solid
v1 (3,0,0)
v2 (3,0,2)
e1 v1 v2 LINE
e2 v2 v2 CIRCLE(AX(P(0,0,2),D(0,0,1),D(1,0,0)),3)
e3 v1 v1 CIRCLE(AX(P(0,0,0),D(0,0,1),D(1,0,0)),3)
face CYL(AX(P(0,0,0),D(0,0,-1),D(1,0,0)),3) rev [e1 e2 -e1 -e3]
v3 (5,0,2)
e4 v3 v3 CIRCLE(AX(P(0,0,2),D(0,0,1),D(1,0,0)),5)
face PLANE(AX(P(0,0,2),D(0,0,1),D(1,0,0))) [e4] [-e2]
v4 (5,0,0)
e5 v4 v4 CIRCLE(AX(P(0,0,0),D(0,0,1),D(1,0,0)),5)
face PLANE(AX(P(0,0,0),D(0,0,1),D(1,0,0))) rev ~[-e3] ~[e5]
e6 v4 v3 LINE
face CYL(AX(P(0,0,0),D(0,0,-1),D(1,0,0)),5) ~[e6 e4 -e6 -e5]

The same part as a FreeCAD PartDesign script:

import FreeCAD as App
import Part
import Sketcher

V = App.Vector
Q = App.Units.Quantity

doc = App.newDocument("Part")
body = doc.addObject("PartDesign::Body", "Body")

# Sketch on XY plane
sketch1 = body.newObject("Sketcher::SketchObject", "Sketch")
sketch1.AttachmentSupport = (doc.getObject("XY_Plane"), [""])
sketch1.MapMode = "FlatFace"
sketch1.addGeometry(Part.Circle(V(0, 0, 0), V(0, 0, 1), 5), False)
sketch1.addGeometry(Part.Circle(V(0, 0, 0), V(0, 0, 1), 3), False)
sketch1.addConstraint(Sketcher.Constraint("Coincident", 0, 3, -1, 1))
sketch1.addConstraint(Sketcher.Constraint("Coincident", 1, 3, -1, 1))
sketch1.addConstraint(Sketcher.Constraint("Diameter", 0, Q("10 mm")))
sketch1.addConstraint(Sketcher.Constraint("Diameter", 1, Q("6 mm")))
pad1 = body.newObject("PartDesign::Pad", "Pad")
pad1.Profile = sketch1
pad1.Length = 2

doc.recompute()
